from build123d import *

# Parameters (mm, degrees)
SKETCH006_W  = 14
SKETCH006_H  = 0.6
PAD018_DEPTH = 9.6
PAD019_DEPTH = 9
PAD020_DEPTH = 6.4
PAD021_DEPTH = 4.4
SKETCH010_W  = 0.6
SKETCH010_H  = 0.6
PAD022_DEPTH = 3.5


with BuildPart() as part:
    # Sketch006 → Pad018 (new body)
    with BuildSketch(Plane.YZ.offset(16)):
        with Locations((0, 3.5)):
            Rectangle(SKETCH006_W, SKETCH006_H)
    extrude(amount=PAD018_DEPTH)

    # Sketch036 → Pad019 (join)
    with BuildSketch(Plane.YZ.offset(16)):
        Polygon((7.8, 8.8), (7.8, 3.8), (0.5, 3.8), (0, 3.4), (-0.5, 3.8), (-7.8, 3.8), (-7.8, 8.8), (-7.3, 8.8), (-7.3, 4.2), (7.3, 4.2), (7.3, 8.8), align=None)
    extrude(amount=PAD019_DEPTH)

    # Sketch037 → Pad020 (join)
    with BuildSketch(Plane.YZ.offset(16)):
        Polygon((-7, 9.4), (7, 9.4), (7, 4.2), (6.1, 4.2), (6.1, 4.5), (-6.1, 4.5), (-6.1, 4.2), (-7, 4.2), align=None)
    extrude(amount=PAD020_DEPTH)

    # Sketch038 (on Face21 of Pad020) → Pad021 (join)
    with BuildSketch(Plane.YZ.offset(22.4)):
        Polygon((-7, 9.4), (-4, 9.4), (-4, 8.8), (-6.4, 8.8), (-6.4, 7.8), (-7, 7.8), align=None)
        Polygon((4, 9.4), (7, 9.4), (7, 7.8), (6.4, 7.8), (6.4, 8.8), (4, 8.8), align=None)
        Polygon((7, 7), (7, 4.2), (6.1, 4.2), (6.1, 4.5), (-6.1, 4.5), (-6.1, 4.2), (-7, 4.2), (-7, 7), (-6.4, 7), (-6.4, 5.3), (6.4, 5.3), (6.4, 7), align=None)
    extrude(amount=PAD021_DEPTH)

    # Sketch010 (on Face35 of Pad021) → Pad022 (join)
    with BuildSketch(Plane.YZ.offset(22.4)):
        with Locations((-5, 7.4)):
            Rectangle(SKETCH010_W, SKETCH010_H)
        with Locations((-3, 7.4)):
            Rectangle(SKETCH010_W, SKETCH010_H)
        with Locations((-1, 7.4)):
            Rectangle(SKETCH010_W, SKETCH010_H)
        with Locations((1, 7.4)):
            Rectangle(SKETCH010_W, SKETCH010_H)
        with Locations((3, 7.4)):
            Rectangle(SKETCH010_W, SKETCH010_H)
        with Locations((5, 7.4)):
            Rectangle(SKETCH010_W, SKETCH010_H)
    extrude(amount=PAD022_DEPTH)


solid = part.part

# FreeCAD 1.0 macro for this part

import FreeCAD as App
import Part
import Sketcher


def add_polygon(sketch, points):
    """Adds a closed chain of lines whose ends are joined by coincident constraints."""
    first, n = sketch.GeometryCount, len(points)
    for a, b in zip(points, points[1:] + points[:1]):
        sketch.addGeometry(Part.LineSegment(App.Vector(*a, 0), App.Vector(*b, 0)), False)
    for i in range(n):
        sketch.addConstraint(Sketcher.Constraint("Coincident", first + i, 2, first + (i + 1) % n, 1))

doc = App.newDocument("Part")
body = doc.addObject("PartDesign::Body", "Body")

# Sketch on YZ plane
sketch1 = body.newObject("Sketcher::SketchObject", "Sketch")
sketch1.AttachmentSupport = (doc.getObject("YZ_Plane"), [""])
sketch1.MapMode = "FlatFace"
sketch1.AttachmentOffset = App.Placement(App.Vector(0, 0, 16), App.Rotation())
add_polygon(sketch1, [(-7, 3.8), (-7, 3.2), (7, 3.2), (7, 3.8)])  # lines 0-3
sketch1.addConstraint(Sketcher.Constraint("Vertical", 0))
sketch1.addConstraint(Sketcher.Constraint("Horizontal", 1))
sketch1.addConstraint(Sketcher.Constraint("Vertical", 2))
sketch1.addConstraint(Sketcher.Constraint("Horizontal", 3))
sketch1.addConstraint(Sketcher.Constraint("DistanceX", 1, 1, 1, 2, 14.0))
sketch1.addConstraint(Sketcher.Constraint("DistanceY", 0, 2, 0, 1, 0.6))
sketch1.addConstraint(Sketcher.Constraint("DistanceX", 0, 2, -1, 1, 7.0))
sketch1.addConstraint(Sketcher.Constraint("DistanceY", -1, 1, 0, 2, 3.2))
pad1 = body.newObject("PartDesign::Pad", "Pad")
pad1.Profile = sketch1
pad1.Length = 9.6

# Sketch on YZ plane
sketch2 = body.newObject("Sketcher::SketchObject", "Sketch001")
sketch2.AttachmentSupport = (doc.getObject("YZ_Plane"), [""])
sketch2.MapMode = "FlatFace"
sketch2.AttachmentOffset = App.Placement(App.Vector(0, 0, 16), App.Rotation())
add_polygon(sketch2, [(7.8, 3.8), (7.8, 8.8), (7.3, 8.8), (7.3, 4.2), (-7.3, 4.2), (-7.3, 8.8), (-7.8, 8.8), (-7.8, 3.8), (-0.5, 3.8), (0, 3.4), (0.5, 3.8)])  # lines 0-10
sketch2.addConstraint(Sketcher.Constraint("Vertical", 0))
sketch2.addConstraint(Sketcher.Constraint("Horizontal", 1))
sketch2.addConstraint(Sketcher.Constraint("Vertical", 2))
sketch2.addConstraint(Sketcher.Constraint("Horizontal", 3))
sketch2.addConstraint(Sketcher.Constraint("Vertical", 4))
sketch2.addConstraint(Sketcher.Constraint("Horizontal", 5))
sketch2.addConstraint(Sketcher.Constraint("Vertical", 6))
sketch2.addConstraint(Sketcher.Constraint("Horizontal", 7))
sketch2.addConstraint(Sketcher.Constraint("Horizontal", 10))
sketch2.addConstraint(Sketcher.Constraint("Symmetric", 1, 2, 4, 2, -2))
sketch2.addConstraint(Sketcher.Constraint("Symmetric", 7, 2, 9, 2, -2))
sketch2.addConstraint(Sketcher.Constraint("PointOnObject", 8, 2, -2))
sketch2.addConstraint(Sketcher.Constraint("Equal", 1, 5))
sketch2.addConstraint(Sketcher.Constraint("DistanceY", 0, 1, 0, 2, 5.0))
sketch2.addConstraint(Sketcher.Constraint("DistanceX", 1, 2, 1, 1, 0.5))
sketch2.addConstraint(Sketcher.Constraint("DistanceX", 3, 2, 3, 1, 14.6))
sketch2.addConstraint(Sketcher.Constraint("DistanceX", 7, 1, 7, 2, 7.3))
sketch2.addConstraint(Sketcher.Constraint("DistanceY", 2, 2, 2, 1, 4.6))
sketch2.addConstraint(Sketcher.Constraint("DistanceY", -1, 1, 0, 2, 8.8))
sketch2.addConstraint(Sketcher.Constraint("DistanceY", -1, 1, 8, 2, 3.4))
pad2 = body.newObject("PartDesign::Pad", "Pad001")
pad2.Profile = sketch2
pad2.Length = 9

# Sketch on YZ plane
sketch3 = body.newObject("Sketcher::SketchObject", "Sketch002")
sketch3.AttachmentSupport = (doc.getObject("YZ_Plane"), [""])
sketch3.MapMode = "FlatFace"
sketch3.AttachmentOffset = App.Placement(App.Vector(0, 0, 16), App.Rotation())
add_polygon(sketch3, [(7, 9.4), (-7, 9.4), (-7, 4.2), (-6.1, 4.2), (-6.1, 4.5), (6.1, 4.5), (6.1, 4.2), (7, 4.2)])  # lines 0-7
sketch3.addConstraint(Sketcher.Constraint("Horizontal", 0))
sketch3.addConstraint(Sketcher.Constraint("Vertical", 1))
sketch3.addConstraint(Sketcher.Constraint("Horizontal", 2))
sketch3.addConstraint(Sketcher.Constraint("Vertical", 3))
sketch3.addConstraint(Sketcher.Constraint("Horizontal", 4))
sketch3.addConstraint(Sketcher.Constraint("Vertical", 5))
sketch3.addConstraint(Sketcher.Constraint("Horizontal", 6))
sketch3.addConstraint(Sketcher.Constraint("Vertical", 7))
sketch3.addConstraint(Sketcher.Constraint("Symmetric", 2, 2, 5, 2, -2))
sketch3.addConstraint(Sketcher.Constraint("Equal", 2, 6))
sketch3.addConstraint(Sketcher.Constraint("DistanceX", 0, 2, 0, 1, 14.0))
sketch3.addConstraint(Sketcher.Constraint("DistanceX", 2, 1, 2, 2, 0.9))
sketch3.addConstraint(Sketcher.Constraint("DistanceY", 1, 2, 1, 1, 5.2))
sketch3.addConstraint(Sketcher.Constraint("DistanceY", 3, 1, 3, 2, 0.3))
sketch3.addConstraint(Sketcher.Constraint("DistanceY", -1, 1, 0, 2, 9.4))
pad3 = body.newObject("PartDesign::Pad", "Pad002")
pad3.Profile = sketch3
pad3.Length = 6.4

# Sketch on YZ plane
sketch4 = body.newObject("Sketcher::SketchObject", "Sketch003")
sketch4.AttachmentSupport = (doc.getObject("YZ_Plane"), [""])
sketch4.MapMode = "FlatFace"
sketch4.AttachmentOffset = App.Placement(App.Vector(0, 0, 22.4), App.Rotation())
add_polygon(sketch4, [(-4, 9.4), (-7, 9.4), (-7, 7.8), (-6.4, 7.8), (-6.4, 8.8), (-4, 8.8)])  # lines 0-5
add_polygon(sketch4, [(7, 9.4), (4, 9.4), (4, 8.8), (6.4, 8.8), (6.4, 7.8), (7, 7.8)])  # lines 6-11
add_polygon(sketch4, [(7, 4.2), (7, 7), (6.4, 7), (6.4, 5.3), (-6.4, 5.3), (-6.4, 7), (-7, 7), (-7, 4.2), (-6.1, 4.2), (-6.1, 4.5), (6.1, 4.5), (6.1, 4.2)])  # lines 12-23
sketch4.addConstraint(Sketcher.Constraint("Horizontal", 0))
sketch4.addConstraint(Sketcher.Constraint("Vertical", 1))
sketch4.addConstraint(Sketcher.Constraint("Horizontal", 2))
sketch4.addConstraint(Sketcher.Constraint("Vertical", 3))
sketch4.addConstraint(Sketcher.Constraint("Horizontal", 4))
sketch4.addConstraint(Sketcher.Constraint("Vertical", 5))
sketch4.addConstraint(Sketcher.Constraint("Horizontal", 6))
sketch4.addConstraint(Sketcher.Constraint("Vertical", 7))
sketch4.addConstraint(Sketcher.Constraint("Horizontal", 8))
sketch4.addConstraint(Sketcher.Constraint("Vertical", 9))
sketch4.addConstraint(Sketcher.Constraint("Horizontal", 10))
sketch4.addConstraint(Sketcher.Constraint("Vertical", 11))
sketch4.addConstraint(Sketcher.Constraint("Vertical", 12))
sketch4.addConstraint(Sketcher.Constraint("Horizontal", 13))
sketch4.addConstraint(Sketcher.Constraint("Vertical", 14))
sketch4.addConstraint(Sketcher.Constraint("Horizontal", 15))
sketch4.addConstraint(Sketcher.Constraint("Vertical", 16))
sketch4.addConstraint(Sketcher.Constraint("Horizontal", 17))
sketch4.addConstraint(Sketcher.Constraint("Vertical", 18))
sketch4.addConstraint(Sketcher.Constraint("Horizontal", 19))
sketch4.addConstraint(Sketcher.Constraint("Vertical", 20))
sketch4.addConstraint(Sketcher.Constraint("Horizontal", 21))
sketch4.addConstraint(Sketcher.Constraint("Vertical", 22))
sketch4.addConstraint(Sketcher.Constraint("Horizontal", 23))
sketch4.addConstraint(Sketcher.Constraint("Symmetric", 5, 2, 6, 2, -2))
sketch4.addConstraint(Sketcher.Constraint("Symmetric", 3, 2, 8, 2, -2))
sketch4.addConstraint(Sketcher.Constraint("Symmetric", 1, 2, 10, 2, -2))
sketch4.addConstraint(Sketcher.Constraint("Symmetric", 13, 2, 16, 2, -2))
sketch4.addConstraint(Sketcher.Constraint("Symmetric", 19, 2, 22, 2, -2))
sketch4.addConstraint(Sketcher.Constraint("Vertical", 11, 2, 12, 2))
sketch4.addConstraint(Sketcher.Constraint("Vertical", 9, 2, 13, 2))
sketch4.addConstraint(Sketcher.Constraint("Vertical", 1, 2, 17, 2))
sketch4.addConstraint(Sketcher.Constraint("Equal", 17, 5))
sketch4.addConstraint(Sketcher.Constraint("DistanceX", 0, 2, 0, 1, 3.0))
sketch4.addConstraint(Sketcher.Constraint("DistanceY", 3, 1, 3, 2, 1.0))
sketch4.addConstraint(Sketcher.Constraint("DistanceX", 2, 1, 2, 2, 0.6))
sketch4.addConstraint(Sketcher.Constraint("DistanceX", 15, 2, 15, 1, 12.8))
sketch4.addConstraint(Sketcher.Constraint("DistanceX", 19, 1, 19, 2, 0.9))
sketch4.addConstraint(Sketcher.Constraint("DistanceY", 12, 1, 12, 2, 2.8))
sketch4.addConstraint(Sketcher.Constraint("DistanceY", 14, 2, 14, 1, 1.7))
sketch4.addConstraint(Sketcher.Constraint("DistanceY", 20, 1, 20, 2, 0.3))
sketch4.addConstraint(Sketcher.Constraint("DistanceY", -1, 1, 12, 2, 7.0))
sketch4.addConstraint(Sketcher.Constraint("DistanceY", -1, 1, 0, 2, 9.4))
pad4 = body.newObject("PartDesign::Pad", "Pad003")
pad4.Profile = sketch4
pad4.Length = 4.4

# Sketch on YZ plane
sketch5 = body.newObject("Sketcher::SketchObject", "Sketch004")
sketch5.AttachmentSupport = (doc.getObject("YZ_Plane"), [""])
sketch5.MapMode = "FlatFace"
sketch5.AttachmentOffset = App.Placement(App.Vector(0, 0, 22.4), App.Rotation())
add_polygon(sketch5, [(-5.3, 7.7), (-5.3, 7.1), (-4.7, 7.1), (-4.7, 7.7)])  # lines 0-3
add_polygon(sketch5, [(-3.3, 7.7), (-3.3, 7.1), (-2.7, 7.1), (-2.7, 7.7)])  # lines 4-7
add_polygon(sketch5, [(-1.3, 7.7), (-1.3, 7.1), (-0.7, 7.1), (-0.7, 7.7)])  # lines 8-11
add_polygon(sketch5, [(0.7, 7.7), (0.7, 7.1), (1.3, 7.1), (1.3, 7.7)])  # lines 12-15
add_polygon(sketch5, [(2.7, 7.7), (2.7, 7.1), (3.3, 7.1), (3.3, 7.7)])  # lines 16-19
add_polygon(sketch5, [(4.7, 7.7), (4.7, 7.1), (5.3, 7.1), (5.3, 7.7)])  # lines 20-23
sketch5.addConstraint(Sketcher.Constraint("Vertical", 0))
sketch5.addConstraint(Sketcher.Constraint("Horizontal", 1))
sketch5.addConstraint(Sketcher.Constraint("Vertical", 2))
sketch5.addConstraint(Sketcher.Constraint("Horizontal", 3))
sketch5.addConstraint(Sketcher.Constraint("Vertical", 4))
sketch5.addConstraint(Sketcher.Constraint("Horizontal", 5))
sketch5.addConstraint(Sketcher.Constraint("Vertical", 6))
sketch5.addConstraint(Sketcher.Constraint("Horizontal", 7))
sketch5.addConstraint(Sketcher.Constraint("Vertical", 8))
sketch5.addConstraint(Sketcher.Constraint("Horizontal", 9))
sketch5.addConstraint(Sketcher.Constraint("Vertical", 10))
sketch5.addConstraint(Sketcher.Constraint("Horizontal", 11))
sketch5.addConstraint(Sketcher.Constraint("Vertical", 12))
sketch5.addConstraint(Sketcher.Constraint("Horizontal", 13))
sketch5.addConstraint(Sketcher.Constraint("Vertical", 14))
sketch5.addConstraint(Sketcher.Constraint("Horizontal", 15))
sketch5.addConstraint(Sketcher.Constraint("Vertical", 16))
sketch5.addConstraint(Sketcher.Constraint("Horizontal", 17))
sketch5.addConstraint(Sketcher.Constraint("Vertical", 18))
sketch5.addConstraint(Sketcher.Constraint("Horizontal", 19))
sketch5.addConstraint(Sketcher.Constraint("Vertical", 20))
sketch5.addConstraint(Sketcher.Constraint("Horizontal", 21))
sketch5.addConstraint(Sketcher.Constraint("Vertical", 22))
sketch5.addConstraint(Sketcher.Constraint("Horizontal", 23))
sketch5.addConstraint(Sketcher.Constraint("Symmetric", 9, 2, 12, 2, -2))
sketch5.addConstraint(Sketcher.Constraint("Symmetric", 11, 2, 14, 2, -2))
sketch5.addConstraint(Sketcher.Constraint("Symmetric", 5, 2, 16, 2, -2))
sketch5.addConstraint(Sketcher.Constraint("Symmetric", 7, 2, 18, 2, -2))
sketch5.addConstraint(Sketcher.Constraint("Symmetric", 1, 2, 20, 2, -2))
sketch5.addConstraint(Sketcher.Constraint("Symmetric", 3, 2, 22, 2, -2))
sketch5.addConstraint(Sketcher.Constraint("Horizontal", 1, 2, 4, 2))
sketch5.addConstraint(Sketcher.Constraint("Horizontal", 3, 2, 6, 2))
sketch5.addConstraint(Sketcher.Constraint("Horizontal", 5, 2, 8, 2))
sketch5.addConstraint(Sketcher.Constraint("Horizontal", 7, 2, 10, 2))
sketch5.addConstraint(Sketcher.Constraint("Equal", 3, 5))
sketch5.addConstraint(Sketcher.Constraint("Equal", 7, 9))
sketch5.addConstraint(Sketcher.Constraint("Equal", 23, 0))
sketch5.addConstraint(Sketcher.Constraint("DistanceX", 1, 1, 1, 2, 0.6))
sketch5.addConstraint(Sketcher.Constraint("DistanceX", 0, 2, 4, 2, 2.0))
sketch5.addConstraint(Sketcher.Constraint("DistanceX", 4, 2, 8, 2, 2.0))
sketch5.addConstraint(Sketcher.Constraint("DistanceX", 8, 2, 12, 2, 2.0))
sketch5.addConstraint(Sketcher.Constraint("DistanceY", -1, 1, 0, 2, 7.1))
pad5 = body.newObject("PartDesign::Pad", "Pad004")
pad5.Profile = sketch5
pad5.Length = 3.5

doc.recompute()
